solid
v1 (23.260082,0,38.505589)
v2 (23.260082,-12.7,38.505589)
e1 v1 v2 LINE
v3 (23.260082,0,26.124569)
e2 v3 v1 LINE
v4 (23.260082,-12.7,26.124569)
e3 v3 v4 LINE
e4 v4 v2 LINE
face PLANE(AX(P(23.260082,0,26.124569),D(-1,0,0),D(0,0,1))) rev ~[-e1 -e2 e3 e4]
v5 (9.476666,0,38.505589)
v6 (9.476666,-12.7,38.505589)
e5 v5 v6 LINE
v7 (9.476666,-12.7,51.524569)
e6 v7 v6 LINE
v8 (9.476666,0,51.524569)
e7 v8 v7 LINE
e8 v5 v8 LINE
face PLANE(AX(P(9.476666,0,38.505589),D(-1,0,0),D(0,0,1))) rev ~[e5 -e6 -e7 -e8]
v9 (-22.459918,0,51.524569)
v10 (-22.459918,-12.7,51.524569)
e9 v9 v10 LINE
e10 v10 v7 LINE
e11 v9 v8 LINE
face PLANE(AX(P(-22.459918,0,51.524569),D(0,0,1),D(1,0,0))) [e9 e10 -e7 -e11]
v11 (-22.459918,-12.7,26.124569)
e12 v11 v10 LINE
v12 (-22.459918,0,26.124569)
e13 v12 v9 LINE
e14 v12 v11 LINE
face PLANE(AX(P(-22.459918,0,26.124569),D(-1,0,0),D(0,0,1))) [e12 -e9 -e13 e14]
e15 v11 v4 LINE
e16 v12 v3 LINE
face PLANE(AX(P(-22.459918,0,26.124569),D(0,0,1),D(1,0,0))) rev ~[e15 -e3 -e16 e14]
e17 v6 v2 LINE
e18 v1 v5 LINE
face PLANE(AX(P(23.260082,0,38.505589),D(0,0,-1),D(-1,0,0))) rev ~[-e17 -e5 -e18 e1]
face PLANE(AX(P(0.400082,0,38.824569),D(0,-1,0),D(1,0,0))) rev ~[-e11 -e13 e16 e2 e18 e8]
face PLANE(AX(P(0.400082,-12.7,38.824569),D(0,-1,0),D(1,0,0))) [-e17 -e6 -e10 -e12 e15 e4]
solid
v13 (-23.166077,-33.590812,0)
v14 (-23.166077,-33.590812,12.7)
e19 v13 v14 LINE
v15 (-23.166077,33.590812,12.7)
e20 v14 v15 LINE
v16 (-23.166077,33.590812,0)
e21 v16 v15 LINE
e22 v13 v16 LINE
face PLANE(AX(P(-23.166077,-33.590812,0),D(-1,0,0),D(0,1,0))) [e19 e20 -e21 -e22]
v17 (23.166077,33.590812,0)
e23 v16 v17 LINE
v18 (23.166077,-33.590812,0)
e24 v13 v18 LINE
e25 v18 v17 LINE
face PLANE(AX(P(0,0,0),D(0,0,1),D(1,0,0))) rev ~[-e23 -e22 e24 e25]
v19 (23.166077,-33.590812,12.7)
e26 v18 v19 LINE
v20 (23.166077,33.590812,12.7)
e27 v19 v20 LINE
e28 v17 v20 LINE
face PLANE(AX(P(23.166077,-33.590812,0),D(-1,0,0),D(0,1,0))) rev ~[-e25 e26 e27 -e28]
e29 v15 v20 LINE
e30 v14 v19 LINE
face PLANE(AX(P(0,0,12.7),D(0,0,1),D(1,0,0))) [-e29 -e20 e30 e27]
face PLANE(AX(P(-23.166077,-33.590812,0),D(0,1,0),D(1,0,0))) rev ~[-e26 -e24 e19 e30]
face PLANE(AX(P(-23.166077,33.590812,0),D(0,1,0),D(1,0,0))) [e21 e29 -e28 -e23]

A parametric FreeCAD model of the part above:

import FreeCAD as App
import Part
import Sketcher
Q = App.Units.Quantity


def add_polygon(sketch, points):
    """Adds a closed chain of lines whose ends are joined by coincident constraints."""
    first, n = sketch.GeometryCount, len(points)
    for a, b in zip(points, points[1:] + points[:1]):
        sketch.addGeometry(Part.LineSegment(App.Vector(*a, 0), App.Vector(*b, 0)), False)
    for i in range(n):
        sketch.addConstraint(Sketcher.Constraint("Coincident", first + i, 2, first + (i + 1) % n, 1))

doc = App.newDocument("Part")
params = doc.addObject("Spreadsheet::Sheet", "Params")
for row, (alias, value) in enumerate([
    ("pad1_length", "0.5 in"),
    ("sketch2_height", "1 in"),
    ("sketch2_width", "1.8 in"),
    ("pad2_length", "0.5 in"),
    ("pocket1_length", "1 in"),
], start=1):
    params.set(f"A{row}", alias)
    params.set(f"B{row}", "=" + value)
    params.setAlias(f"B{row}", alias)

body = doc.addObject("PartDesign::Body", "Body")

# Sketch on XY plane
sketch1 = body.newObject("Sketcher::SketchObject", "Sketch")
sketch1.AttachmentSupport = (doc.getObject("XY_Plane"), [""])
sketch1.MapMode = "FlatFace"
add_polygon(sketch1, [(-23, 34), (-23, -34), (23, -34), (23, 34)])  # lines 0-3
sketch1.addConstraint(Sketcher.Constraint("Vertical", 0))
sketch1.addConstraint(Sketcher.Constraint("Horizontal", 1))
sketch1.addConstraint(Sketcher.Constraint("Vertical", 2))
sketch1.addConstraint(Sketcher.Constraint("Horizontal", 3))
sketch1.addConstraint(Sketcher.Constraint("Symmetric", 0, 2, 2, 2, -1, 1))
sketch1.addConstraint(Sketcher.Constraint("DistanceX", 1, 1, 1, 2, Q("46.332154 mm")))
sketch1.addConstraint(Sketcher.Constraint("DistanceY", 0, 2, 0, 1, Q("67.181624 mm")))
pad1 = body.newObject("PartDesign::Pad", "Pad")
pad1.Profile = sketch1
pad1.setExpression("Length", "Params.pad1_length")
body2 = doc.addObject("PartDesign::Body", "Body001")

# Sketch on XZ plane
sketch2 = body2.newObject("Sketcher::SketchObject", "Sketch001")
sketch2.AttachmentSupport = (doc.getObject("XZ_Plane001"), [""])
sketch2.MapMode = "FlatFace"
add_polygon(sketch2, [(-22, 52), (-22, 26), (23, 26), (23, 52)])  # lines 0-3
sketch2.addConstraint(Sketcher.Constraint("Vertical", 0))
sketch2.addConstraint(Sketcher.Constraint("Horizontal", 1))
sketch2.addConstraint(Sketcher.Constraint("Vertical", 2))
sketch2.addConstraint(Sketcher.Constraint("Horizontal", 3))
sketch2.addConstraint(Sketcher.Constraint("DistanceY", 0, 2, 0, 1, Q("1 in")))
sketch2.addConstraint(Sketcher.Constraint("DistanceX", 1, 1, 1, 2, Q("1.8 in")))
sketch2.addConstraint(Sketcher.Constraint("DistanceY", -1, 1, 0, 2, Q("26.124569 mm")))
sketch2.addConstraint(Sketcher.Constraint("DistanceX", 0, 2, -1, 1, Q("22.459918 mm")))
sketch2.setExpression("Constraints[8]", "Params.sketch2_height")
sketch2.setExpression("Constraints[9]", "Params.sketch2_width")
pad2 = body2.newObject("PartDesign::Pad", "Pad001")
pad2.Profile = sketch2
pad2.setExpression("Length", "Params.pad2_length")

# Sketch on XZ plane
sketch3 = body2.newObject("Sketcher::SketchObject", "Sketch002")
sketch3.AttachmentSupport = (doc.getObject("XZ_Plane001"), [""])
sketch3.MapMode = "FlatFace"
add_polygon(sketch3, [(23, 52), (23, 39), (9, 39), (9, 52)])  # lines 0-3
sketch3.addConstraint(Sketcher.Constraint("Vertical", 0))
sketch3.addConstraint(Sketcher.Constraint("Horizontal", 1))
sketch3.addConstraint(Sketcher.Constraint("Vertical", 2))
sketch3.addConstraint(Sketcher.Constraint("Horizontal", 3))
sketch3.addConstraint(Sketcher.Constraint("DistanceY", 0, 2, 0, 1, Q("13.018981 mm")))
sketch3.addConstraint(Sketcher.Constraint("DistanceX", 1, 2, 1, 1, Q("13.783416 mm")))
sketch3.addConstraint(Sketcher.Constraint("DistanceY", -1, 1, 0, 2, Q("38.505589 mm")))
sketch3.addConstraint(Sketcher.Constraint("DistanceX", -1, 1, 0, 2, Q("23.260082 mm")))
pocket1 = body2.newObject("PartDesign::Pocket", "Pocket")
pocket1.Profile = sketch3
pocket1.setExpression("Length", "Params.pocket1_length")
pocket1.Reversed = True

doc.recompute()
